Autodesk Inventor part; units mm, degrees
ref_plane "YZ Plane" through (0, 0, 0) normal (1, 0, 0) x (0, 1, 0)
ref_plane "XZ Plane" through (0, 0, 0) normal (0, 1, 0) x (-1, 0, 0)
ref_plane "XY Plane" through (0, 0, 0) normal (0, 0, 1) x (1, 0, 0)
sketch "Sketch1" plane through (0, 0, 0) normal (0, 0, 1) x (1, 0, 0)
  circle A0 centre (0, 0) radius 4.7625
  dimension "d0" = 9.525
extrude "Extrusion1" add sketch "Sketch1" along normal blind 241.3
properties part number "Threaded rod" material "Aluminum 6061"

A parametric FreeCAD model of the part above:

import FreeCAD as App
import Part
import Sketcher
from FreeCAD import Vector
Q = App.Units.Quantity

doc = App.newDocument("Part")
body = doc.addObject("PartDesign::Body", "Body")

sketch1 = body.newObject("Sketcher::SketchObject", "Sketch")
sketch1.AttachmentSupport = (doc.getObject("XY_Plane"), [""])
sketch1.MapMode = "FlatFace"
sketch1.addGeometry(Part.Circle(Vector(0, 0, 0), Vector(0, 0, 1), 4.8), False)
sketch1.addConstraint(Sketcher.Constraint("Coincident", 0, 3, -1, 1))
sketch1.addConstraint(Sketcher.Constraint("Diameter", 0, Q("0.375 in")))
pad1 = body.newObject("PartDesign::Pad", "Pad")
pad1.Profile = sketch1
pad1.Length = Q("9.5 in")

doc.recompute()
